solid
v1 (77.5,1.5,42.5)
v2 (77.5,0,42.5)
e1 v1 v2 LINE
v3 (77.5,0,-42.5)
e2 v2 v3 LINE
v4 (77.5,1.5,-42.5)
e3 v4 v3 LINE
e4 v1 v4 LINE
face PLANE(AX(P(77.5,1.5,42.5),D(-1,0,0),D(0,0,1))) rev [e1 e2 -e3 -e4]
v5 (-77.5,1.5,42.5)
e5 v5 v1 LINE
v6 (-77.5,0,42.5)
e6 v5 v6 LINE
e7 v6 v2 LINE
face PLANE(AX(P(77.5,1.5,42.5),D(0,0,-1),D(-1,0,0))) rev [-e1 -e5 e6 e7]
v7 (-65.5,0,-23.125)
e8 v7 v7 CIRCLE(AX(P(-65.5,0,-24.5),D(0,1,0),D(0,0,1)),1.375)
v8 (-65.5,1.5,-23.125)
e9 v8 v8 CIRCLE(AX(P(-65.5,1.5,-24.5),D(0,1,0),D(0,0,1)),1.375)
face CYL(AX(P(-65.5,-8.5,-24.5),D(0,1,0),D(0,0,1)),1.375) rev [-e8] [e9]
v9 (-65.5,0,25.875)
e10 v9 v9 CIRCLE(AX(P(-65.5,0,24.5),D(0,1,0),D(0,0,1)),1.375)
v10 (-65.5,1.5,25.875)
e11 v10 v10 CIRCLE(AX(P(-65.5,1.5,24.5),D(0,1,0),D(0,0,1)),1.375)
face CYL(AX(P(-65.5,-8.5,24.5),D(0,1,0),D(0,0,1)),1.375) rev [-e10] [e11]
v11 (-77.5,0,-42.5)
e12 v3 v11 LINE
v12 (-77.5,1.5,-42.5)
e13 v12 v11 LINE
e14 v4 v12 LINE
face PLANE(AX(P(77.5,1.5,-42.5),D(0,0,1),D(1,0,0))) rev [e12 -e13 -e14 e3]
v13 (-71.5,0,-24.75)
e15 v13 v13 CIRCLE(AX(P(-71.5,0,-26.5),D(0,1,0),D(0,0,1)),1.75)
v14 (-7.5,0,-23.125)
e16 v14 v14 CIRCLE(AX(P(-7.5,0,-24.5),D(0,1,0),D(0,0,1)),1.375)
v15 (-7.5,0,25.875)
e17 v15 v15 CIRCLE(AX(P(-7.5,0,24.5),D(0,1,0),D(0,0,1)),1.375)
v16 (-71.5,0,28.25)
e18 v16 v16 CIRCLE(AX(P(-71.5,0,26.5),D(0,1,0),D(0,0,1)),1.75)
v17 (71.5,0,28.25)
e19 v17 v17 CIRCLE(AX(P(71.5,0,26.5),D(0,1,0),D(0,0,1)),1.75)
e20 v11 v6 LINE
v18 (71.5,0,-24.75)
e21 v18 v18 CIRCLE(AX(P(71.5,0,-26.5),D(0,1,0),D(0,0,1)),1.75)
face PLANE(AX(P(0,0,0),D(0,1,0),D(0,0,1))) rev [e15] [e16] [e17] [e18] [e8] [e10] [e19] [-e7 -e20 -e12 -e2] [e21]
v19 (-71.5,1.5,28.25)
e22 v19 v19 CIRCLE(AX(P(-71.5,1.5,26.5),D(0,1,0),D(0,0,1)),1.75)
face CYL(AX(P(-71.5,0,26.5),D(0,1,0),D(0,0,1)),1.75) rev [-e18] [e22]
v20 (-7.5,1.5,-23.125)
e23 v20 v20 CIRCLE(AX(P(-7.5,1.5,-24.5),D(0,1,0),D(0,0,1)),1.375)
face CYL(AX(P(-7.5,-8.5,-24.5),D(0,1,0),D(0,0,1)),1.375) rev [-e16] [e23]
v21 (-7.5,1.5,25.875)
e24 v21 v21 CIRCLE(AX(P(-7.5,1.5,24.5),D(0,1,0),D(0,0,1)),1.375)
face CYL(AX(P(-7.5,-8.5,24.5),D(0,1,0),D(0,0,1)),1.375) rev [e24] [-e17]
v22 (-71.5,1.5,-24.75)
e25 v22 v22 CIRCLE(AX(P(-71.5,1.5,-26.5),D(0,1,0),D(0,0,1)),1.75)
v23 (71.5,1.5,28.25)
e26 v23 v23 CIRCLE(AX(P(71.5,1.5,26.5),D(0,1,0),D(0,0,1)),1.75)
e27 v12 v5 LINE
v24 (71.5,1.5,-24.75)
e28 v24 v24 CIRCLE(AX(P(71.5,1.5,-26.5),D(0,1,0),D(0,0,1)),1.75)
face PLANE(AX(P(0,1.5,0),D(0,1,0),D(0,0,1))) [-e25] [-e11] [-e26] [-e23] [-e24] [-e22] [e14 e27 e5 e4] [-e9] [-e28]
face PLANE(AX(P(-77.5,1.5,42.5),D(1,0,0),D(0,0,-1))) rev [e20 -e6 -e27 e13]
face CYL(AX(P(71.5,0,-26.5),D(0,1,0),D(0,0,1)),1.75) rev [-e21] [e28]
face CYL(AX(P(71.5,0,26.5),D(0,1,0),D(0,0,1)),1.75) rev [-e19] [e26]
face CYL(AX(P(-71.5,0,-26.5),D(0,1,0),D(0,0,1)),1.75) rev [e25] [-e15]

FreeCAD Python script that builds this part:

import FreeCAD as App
import Part
import Sketcher

doc = App.newDocument("Part")
body = doc.addObject("PartDesign::Body", "Body")

# Sketch on XZ plane
sketch1 = body.newObject("Sketcher::SketchObject", "Sketch")
sketch1.AttachmentSupport = (doc.getObject("XZ_Plane"), [""])
sketch1.MapMode = "FlatFace"
sketch1.addGeometry([
    Part.LineSegment(App.Vector(-78, -42, 0), App.Vector(-78, 42, 0)),
    Part.LineSegment(App.Vector(-78, 42, 0), App.Vector(78, 42, 0)),
    Part.LineSegment(App.Vector(78, 42, 0), App.Vector(78, -42, 0)),
    Part.LineSegment(App.Vector(78, -42, 0), App.Vector(-78, -42, 0)),
], False)
sketch1.addConstraint([
    Sketcher.Constraint("Coincident", 0, 2, 1, 1),
    Sketcher.Constraint("Coincident", 1, 2, 2, 1),
    Sketcher.Constraint("Coincident", 2, 2, 3, 1),
    Sketcher.Constraint("Coincident", 3, 2, 0, 1),
    Sketcher.Constraint("Vertical", 0),
    Sketcher.Constraint("Horizontal", 1),
    Sketcher.Constraint("Vertical", 2),
    Sketcher.Constraint("Horizontal", 3),
    Sketcher.Constraint("Symmetric", 0, 2, 2, 2, -1, 1),
    Sketcher.Constraint("DistanceX", 1, 1, 1, 2, 155.0),
    Sketcher.Constraint("DistanceY", 0, 1, 0, 2, 85.0),
])
pad1 = body.newObject("PartDesign::Pad", "Pad")
pad1.Profile = sketch1
pad1.Length = 1.5
pad1.Reversed = True

# Sketch on XZ plane
sketch2 = body.newObject("Sketcher::SketchObject", "Sketch001")
sketch2.AttachmentSupport = (doc.getObject("XZ_Plane"), [""])
sketch2.MapMode = "FlatFace"
sketch2.AttachmentOffset = App.Placement(App.Vector(0, 0, -1.5), App.Rotation())
sketch2.addGeometry([
    Part.Circle(App.Vector(-71.5, -26.5, 0), App.Vector(0, 0, 1), 1.8),
    Part.Circle(App.Vector(-71.5, 26.5, 0), App.Vector(0, 0, 1), 1.8),
    Part.Circle(App.Vector(71.5, 26.5, 0), App.Vector(0, 0, 1), 1.8),
    Part.Circle(App.Vector(71.5, -26.5, 0), App.Vector(0, 0, 1), 1.8),
], False)
sketch2.addConstraint([
    Sketcher.Constraint("Equal", 0, 1),
    Sketcher.Constraint("Equal", 1, 2),
    Sketcher.Constraint("Equal", 2, 3),
    Sketcher.Constraint("Symmetric", 0, 3, 2, 3, -1, 1),
    Sketcher.Constraint("Symmetric", 1, 3, 3, 3, -1, 1),
    Sketcher.Constraint("Symmetric", 1, 3, 2, 3, -2),
    Sketcher.Constraint("Diameter", 0, 3.5),
    Sketcher.Constraint("DistanceY", 0, 3, 1, 3, 53.0),
    Sketcher.Constraint("DistanceX", 1, 3, 2, 3, 143.0),
])
pocket1 = body.newObject("PartDesign::Pocket", "Pocket")
pocket1.Profile = sketch2
pocket1.Type = "ThroughAll"
pocket1.Reversed = True

# Sketch on XZ plane
sketch3 = body.newObject("Sketcher::SketchObject", "Sketch002")
sketch3.AttachmentSupport = (doc.getObject("XZ_Plane"), [""])
sketch3.MapMode = "FlatFace"
sketch3.AttachmentOffset = App.Placement(App.Vector(0, 0, -1.5), App.Rotation())
sketch3.addGeometry([
    Part.Circle(App.Vector(-65.5, -24.5, 0), App.Vector(0, 0, 1), 1.4),
    Part.Circle(App.Vector(-65.5, 24.5, 0), App.Vector(0, 0, 1), 1.4),
    Part.Circle(App.Vector(-7.5, -24.5, 0), App.Vector(0, 0, 1), 1.4),
    Part.Circle(App.Vector(-7.5, 24.5, 0), App.Vector(0, 0, 1), 1.4),
], False)
sketch3.addConstraint([
    Sketcher.Constraint("Equal", 0, 1),
    Sketcher.Constraint("Equal", 1, 2),
    Sketcher.Constraint("Equal", 2, 3),
    Sketcher.Constraint("Symmetric", 0, 3, 1, 3, -1),
    Sketcher.Constraint("Symmetric", 2, 3, 3, 3, -1),
    Sketcher.Constraint("Horizontal", 0, 3, 2, 3),
    Sketcher.Constraint("Diameter", 0, 2.75),
    Sketcher.Constraint("DistanceY", 0, 3, 1, 3, 49.0),
    Sketcher.Constraint("DistanceX", 0, 3, 2, 3, 58.0),
    Sketcher.Constraint("DistanceX", 0, 3, -1, 1, 65.5),
])
pocket2 = body.newObject("PartDesign::Pocket", "Pocket001")
pocket2.Profile = sketch3
pocket2.Length = 10
pocket2.Reversed = True

doc.recompute()
